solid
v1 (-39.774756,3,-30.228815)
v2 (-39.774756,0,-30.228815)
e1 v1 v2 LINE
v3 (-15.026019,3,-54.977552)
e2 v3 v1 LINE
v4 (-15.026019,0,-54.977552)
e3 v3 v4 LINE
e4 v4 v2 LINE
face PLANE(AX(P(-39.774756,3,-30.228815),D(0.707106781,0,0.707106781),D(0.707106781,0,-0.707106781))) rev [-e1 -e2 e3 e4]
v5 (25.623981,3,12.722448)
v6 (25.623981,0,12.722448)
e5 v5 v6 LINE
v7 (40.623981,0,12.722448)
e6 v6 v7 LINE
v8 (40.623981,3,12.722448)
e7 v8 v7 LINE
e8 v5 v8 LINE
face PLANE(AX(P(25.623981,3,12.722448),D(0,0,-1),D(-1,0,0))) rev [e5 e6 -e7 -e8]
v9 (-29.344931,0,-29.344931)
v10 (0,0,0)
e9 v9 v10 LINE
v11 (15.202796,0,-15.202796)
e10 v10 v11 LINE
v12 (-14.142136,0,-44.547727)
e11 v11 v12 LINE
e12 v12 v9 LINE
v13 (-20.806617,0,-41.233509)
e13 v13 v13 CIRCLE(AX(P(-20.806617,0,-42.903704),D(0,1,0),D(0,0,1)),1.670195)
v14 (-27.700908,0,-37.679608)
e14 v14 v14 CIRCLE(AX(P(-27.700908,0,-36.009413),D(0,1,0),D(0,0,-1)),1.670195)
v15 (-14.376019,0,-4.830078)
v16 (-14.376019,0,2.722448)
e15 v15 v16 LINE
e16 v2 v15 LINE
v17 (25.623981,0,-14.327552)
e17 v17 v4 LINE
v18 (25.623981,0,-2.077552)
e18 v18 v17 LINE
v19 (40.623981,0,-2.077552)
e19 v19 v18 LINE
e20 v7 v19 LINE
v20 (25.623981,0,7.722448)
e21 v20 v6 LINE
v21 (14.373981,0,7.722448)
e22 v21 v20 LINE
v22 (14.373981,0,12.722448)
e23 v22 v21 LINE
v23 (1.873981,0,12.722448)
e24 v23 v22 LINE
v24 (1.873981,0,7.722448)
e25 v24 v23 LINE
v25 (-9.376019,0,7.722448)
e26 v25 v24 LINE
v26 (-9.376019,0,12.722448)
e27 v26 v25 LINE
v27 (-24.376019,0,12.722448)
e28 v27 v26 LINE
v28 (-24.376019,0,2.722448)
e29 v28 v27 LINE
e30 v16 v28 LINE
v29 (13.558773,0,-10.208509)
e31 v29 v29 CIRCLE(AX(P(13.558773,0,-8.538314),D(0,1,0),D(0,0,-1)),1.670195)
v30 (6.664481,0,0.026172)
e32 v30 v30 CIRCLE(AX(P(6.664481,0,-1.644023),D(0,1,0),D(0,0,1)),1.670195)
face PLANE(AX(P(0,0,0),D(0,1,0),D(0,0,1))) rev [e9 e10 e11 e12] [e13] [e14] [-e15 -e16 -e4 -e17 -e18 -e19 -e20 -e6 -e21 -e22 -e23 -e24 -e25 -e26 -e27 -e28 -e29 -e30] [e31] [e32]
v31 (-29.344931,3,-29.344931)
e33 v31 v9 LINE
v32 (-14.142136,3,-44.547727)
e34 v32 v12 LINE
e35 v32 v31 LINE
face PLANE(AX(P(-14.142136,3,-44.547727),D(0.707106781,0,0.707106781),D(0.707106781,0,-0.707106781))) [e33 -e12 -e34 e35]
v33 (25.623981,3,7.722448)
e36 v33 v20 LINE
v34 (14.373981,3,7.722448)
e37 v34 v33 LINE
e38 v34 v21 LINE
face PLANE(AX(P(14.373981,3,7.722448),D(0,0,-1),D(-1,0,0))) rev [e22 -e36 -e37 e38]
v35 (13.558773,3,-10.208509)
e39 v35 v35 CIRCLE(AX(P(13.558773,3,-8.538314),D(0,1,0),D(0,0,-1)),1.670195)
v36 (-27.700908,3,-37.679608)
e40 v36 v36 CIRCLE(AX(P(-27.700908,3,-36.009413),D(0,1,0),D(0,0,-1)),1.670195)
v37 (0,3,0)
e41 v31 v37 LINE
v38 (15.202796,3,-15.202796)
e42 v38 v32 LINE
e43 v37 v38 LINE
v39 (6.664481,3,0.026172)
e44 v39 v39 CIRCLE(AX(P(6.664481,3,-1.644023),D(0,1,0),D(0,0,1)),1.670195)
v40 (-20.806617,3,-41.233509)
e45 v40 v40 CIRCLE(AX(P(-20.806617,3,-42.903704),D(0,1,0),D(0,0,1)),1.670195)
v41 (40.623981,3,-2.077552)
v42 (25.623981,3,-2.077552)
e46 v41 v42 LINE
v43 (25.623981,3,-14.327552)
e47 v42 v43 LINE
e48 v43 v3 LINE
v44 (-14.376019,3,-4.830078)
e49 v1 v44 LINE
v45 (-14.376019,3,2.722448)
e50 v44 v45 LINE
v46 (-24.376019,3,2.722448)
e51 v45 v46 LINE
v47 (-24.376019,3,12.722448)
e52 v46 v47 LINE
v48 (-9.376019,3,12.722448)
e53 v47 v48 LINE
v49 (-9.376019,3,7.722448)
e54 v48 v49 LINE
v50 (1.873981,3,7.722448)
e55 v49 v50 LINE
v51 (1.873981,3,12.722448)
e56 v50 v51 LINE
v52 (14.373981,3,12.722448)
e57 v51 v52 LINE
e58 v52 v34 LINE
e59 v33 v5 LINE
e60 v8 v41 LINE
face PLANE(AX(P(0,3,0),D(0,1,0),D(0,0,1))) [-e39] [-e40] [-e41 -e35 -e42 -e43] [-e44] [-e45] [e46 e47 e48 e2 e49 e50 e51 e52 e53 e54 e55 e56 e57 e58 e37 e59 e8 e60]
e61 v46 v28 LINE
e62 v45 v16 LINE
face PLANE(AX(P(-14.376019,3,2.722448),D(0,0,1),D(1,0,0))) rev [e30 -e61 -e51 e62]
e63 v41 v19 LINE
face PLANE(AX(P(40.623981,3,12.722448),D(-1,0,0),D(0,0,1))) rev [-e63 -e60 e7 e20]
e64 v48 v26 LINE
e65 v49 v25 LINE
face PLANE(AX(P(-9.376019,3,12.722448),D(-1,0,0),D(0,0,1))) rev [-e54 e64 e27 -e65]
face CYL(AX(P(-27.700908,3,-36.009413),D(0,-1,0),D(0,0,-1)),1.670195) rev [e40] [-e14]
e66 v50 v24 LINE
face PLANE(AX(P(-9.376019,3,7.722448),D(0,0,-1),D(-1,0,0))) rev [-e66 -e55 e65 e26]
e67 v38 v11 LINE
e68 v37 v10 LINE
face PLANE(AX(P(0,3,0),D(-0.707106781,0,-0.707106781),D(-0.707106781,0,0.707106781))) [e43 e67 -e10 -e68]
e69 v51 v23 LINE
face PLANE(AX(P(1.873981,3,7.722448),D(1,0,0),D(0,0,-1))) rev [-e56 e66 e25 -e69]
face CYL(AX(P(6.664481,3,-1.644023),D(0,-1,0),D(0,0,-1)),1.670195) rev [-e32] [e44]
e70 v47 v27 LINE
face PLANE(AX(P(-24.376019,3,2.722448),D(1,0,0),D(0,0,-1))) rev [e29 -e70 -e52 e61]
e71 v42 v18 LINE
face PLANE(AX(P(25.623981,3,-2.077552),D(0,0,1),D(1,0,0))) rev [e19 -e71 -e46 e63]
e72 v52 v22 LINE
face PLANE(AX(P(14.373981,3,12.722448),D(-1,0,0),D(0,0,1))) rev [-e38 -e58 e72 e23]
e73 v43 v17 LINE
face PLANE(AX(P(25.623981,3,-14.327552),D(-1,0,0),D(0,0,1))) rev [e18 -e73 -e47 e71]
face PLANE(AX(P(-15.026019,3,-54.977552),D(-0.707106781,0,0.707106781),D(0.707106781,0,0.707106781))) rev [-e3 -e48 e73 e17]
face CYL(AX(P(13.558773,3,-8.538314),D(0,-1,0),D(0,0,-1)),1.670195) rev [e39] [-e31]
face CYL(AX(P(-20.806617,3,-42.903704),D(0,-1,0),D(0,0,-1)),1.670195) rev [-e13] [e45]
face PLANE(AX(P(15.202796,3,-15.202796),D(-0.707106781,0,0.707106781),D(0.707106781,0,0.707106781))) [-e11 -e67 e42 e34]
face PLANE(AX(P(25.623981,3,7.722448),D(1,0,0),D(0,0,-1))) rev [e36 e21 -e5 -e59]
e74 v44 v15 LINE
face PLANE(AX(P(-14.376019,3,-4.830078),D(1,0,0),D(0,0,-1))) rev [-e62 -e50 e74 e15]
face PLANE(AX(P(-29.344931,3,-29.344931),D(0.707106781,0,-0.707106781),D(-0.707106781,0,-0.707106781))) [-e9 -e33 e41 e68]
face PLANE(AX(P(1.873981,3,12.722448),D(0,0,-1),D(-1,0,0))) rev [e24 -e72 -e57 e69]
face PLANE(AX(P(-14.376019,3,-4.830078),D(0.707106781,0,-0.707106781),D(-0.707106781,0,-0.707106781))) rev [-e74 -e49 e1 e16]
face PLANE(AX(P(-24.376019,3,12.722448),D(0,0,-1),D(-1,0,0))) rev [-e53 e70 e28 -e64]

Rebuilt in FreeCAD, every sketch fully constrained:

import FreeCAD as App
import Part
import Sketcher

V = App.Vector
Q = App.Units.Quantity


def add_polygon(sketch, points):
    """Adds a closed chain of lines whose ends are joined by coincident constraints."""
    first, n = sketch.GeometryCount, len(points)
    for a, b in zip(points, points[1:] + points[:1]):
        sketch.addGeometry(Part.LineSegment(App.Vector(*a, 0), App.Vector(*b, 0)), False)
    for i in range(n):
        sketch.addConstraint(Sketcher.Constraint("Coincident", first + i, 2, first + (i + 1) % n, 1))

doc = App.newDocument("Part")
body = doc.addObject("PartDesign::Body", "Body")

sketch1 = doc.addObject("Sketcher::SketchObject", "Sketch")
body.addObject(sketch1)
sketch1.AttachmentSupport = (doc.XZ_Plane, [""])
sketch1.MapMode = "FlatFace"
add_polygon(sketch1, [(-14.376019, -4.830078), (-14.376019, 2.722448), (-24.376019, 2.722448), (-24.376019, 12.722448), (-9.376019, 12.722448), (-9.376019, 7.722448), (1.873981, 7.722448), (1.873981, 12.722448), (14.373981, 12.722448), (14.373981, 7.722448), (25.623981, 7.722448), (25.623981, 12.722448), (40.623981, 12.722448), (40.623981, -2.077552), (25.623981, -2.077552), (25.623981, -14.327552), (-15.026019, -54.977552), (-39.774756, -30.228815)])
sketch1.addGeometry(Part.Circle(V(6.664481, -1.644023, 0), V(0, 0, 1), 1.670195), False)
sketch1.addGeometry(Part.Circle(V(13.558773, -8.538314, 0), V(0, 0, 1), 1.670195), False)
sketch1.addGeometry(Part.Circle(V(-27.700908, -36.009413, 0), V(0, 0, 1), 1.670195), False)
sketch1.addGeometry(Part.Circle(V(-20.806617, -42.903704, 0), V(0, 0, 1), 1.670195), False)
add_polygon(sketch1, [(15.202796, -15.202796), (0, 0), (-29.344931, -29.344931), (-14.142136, -44.547727)])
sketch1.addConstraint([
    Sketcher.Constraint("Vertical", 0),
    Sketcher.Constraint("Horizontal", 1),
    Sketcher.Constraint("Vertical", 2),
    Sketcher.Constraint("Horizontal", 3),
    Sketcher.Constraint("Vertical", 4),
    Sketcher.Constraint("Horizontal", 5),
    Sketcher.Constraint("Vertical", 6),
    Sketcher.Constraint("Horizontal", 7),
    Sketcher.Constraint("Vertical", 8),
    Sketcher.Constraint("Horizontal", 9),
    Sketcher.Constraint("Vertical", 10),
    Sketcher.Constraint("Horizontal", 11),
    Sketcher.Constraint("Vertical", 12),
    Sketcher.Constraint("Horizontal", 13),
    Sketcher.Constraint("Vertical", 14),
    Sketcher.Constraint("Coincident", 22, 2, -1, 1),
    Sketcher.Constraint("Equal", 18, 19),
    Sketcher.Constraint("Equal", 19, 20),
    Sketcher.Constraint("Equal", 20, 21),
    Sketcher.Constraint("Perpendicular", 15, 16),
    Sketcher.Constraint("Perpendicular", 16, 17),
    Sketcher.Constraint("Perpendicular", 17, 22),
    Sketcher.Constraint("Perpendicular", 22, 23),
    Sketcher.Constraint("Perpendicular", 23, 24),
    Sketcher.Constraint("Perpendicular", 24, 25),
    Sketcher.Constraint("Horizontal", 3, 2, 6, 2),
    Sketcher.Constraint("Horizontal", 5, 2, 8, 2),
    Sketcher.Constraint("Horizontal", 7, 2, 10, 2),
    Sketcher.Constraint("Vertical", 10, 2, 13, 2),
    Sketcher.Constraint("Equal", 5, 9),
    Sketcher.Constraint("Equal", 3, 11),
    Sketcher.Constraint("Equal", 1, 2),
    Sketcher.Constraint("DistanceX", 1, 2, 1, 1, Q("10 mm")),
    Sketcher.Constraint("DistanceX", 3, 1, 3, 2, Q("15 mm")),
    Sketcher.Constraint("DistanceY", 4, 2, 4, 1, Q("5 mm")),
    Sketcher.Constraint("Angle", 15, Q("-135 deg")),
    Sketcher.Constraint("Distance", 16, Q("35 mm")),
    Sketcher.Constraint("DistanceX", 7, 1, 7, 2, Q("12.5 mm")),
    Sketcher.Constraint("DistanceY", 12, 2, 12, 1, Q("14.8 mm")),
    Sketcher.Constraint("Distance", 22, Q("21.5 mm")),
    Sketcher.Constraint("Distance", 23, Q("41.5 mm")),
    Sketcher.Constraint("DistanceX", 5, 1, 5, 2, Q("11.25 mm")),
    Sketcher.Constraint("DistanceY", 14, 2, 14, 1, Q("12.25 mm")),
    Sketcher.Constraint("Diameter", 18, Q("3.34039 mm")),
    Sketcher.Constraint("DistanceX", 15, 2, 14, 2, Q("40.65 mm")),
    Sketcher.Constraint("DistanceY", 20, 3, 19, 3, Q("27.471098 mm")),
    Sketcher.Constraint("DistanceX", 21, 3, 18, 3, Q("27.471098 mm")),
    Sketcher.Constraint("DistanceX", 0, 2, 18, 3, Q("21.040501 mm")),
    Sketcher.Constraint("DistanceX", -1, 1, 18, 3, Q("6.664481 mm")),
    Sketcher.Constraint("DistanceX", 20, 3, -1, 1, Q("27.700908 mm")),
    Sketcher.Constraint("DistanceX", 18, 3, 19, 3, Q("6.894291 mm")),
    Sketcher.Constraint("DistanceY", 19, 3, 18, 3, Q("6.894291 mm")),
    Sketcher.Constraint("DistanceY", 21, 3, 20, 3, Q("6.894291 mm")),
    Sketcher.Constraint("DistanceY", 18, 3, 0, 2, Q("4.366471 mm")),
    Sketcher.Constraint("DistanceY", 20, 3, 23, 2, Q("6.664481 mm")),
])
pad1 = doc.addObject("PartDesign::Pad", "Pad")
body.addObject(pad1)
pad1.Profile = sketch1
pad1.Length = 3
pad1.Reversed = True

doc.recompute()
